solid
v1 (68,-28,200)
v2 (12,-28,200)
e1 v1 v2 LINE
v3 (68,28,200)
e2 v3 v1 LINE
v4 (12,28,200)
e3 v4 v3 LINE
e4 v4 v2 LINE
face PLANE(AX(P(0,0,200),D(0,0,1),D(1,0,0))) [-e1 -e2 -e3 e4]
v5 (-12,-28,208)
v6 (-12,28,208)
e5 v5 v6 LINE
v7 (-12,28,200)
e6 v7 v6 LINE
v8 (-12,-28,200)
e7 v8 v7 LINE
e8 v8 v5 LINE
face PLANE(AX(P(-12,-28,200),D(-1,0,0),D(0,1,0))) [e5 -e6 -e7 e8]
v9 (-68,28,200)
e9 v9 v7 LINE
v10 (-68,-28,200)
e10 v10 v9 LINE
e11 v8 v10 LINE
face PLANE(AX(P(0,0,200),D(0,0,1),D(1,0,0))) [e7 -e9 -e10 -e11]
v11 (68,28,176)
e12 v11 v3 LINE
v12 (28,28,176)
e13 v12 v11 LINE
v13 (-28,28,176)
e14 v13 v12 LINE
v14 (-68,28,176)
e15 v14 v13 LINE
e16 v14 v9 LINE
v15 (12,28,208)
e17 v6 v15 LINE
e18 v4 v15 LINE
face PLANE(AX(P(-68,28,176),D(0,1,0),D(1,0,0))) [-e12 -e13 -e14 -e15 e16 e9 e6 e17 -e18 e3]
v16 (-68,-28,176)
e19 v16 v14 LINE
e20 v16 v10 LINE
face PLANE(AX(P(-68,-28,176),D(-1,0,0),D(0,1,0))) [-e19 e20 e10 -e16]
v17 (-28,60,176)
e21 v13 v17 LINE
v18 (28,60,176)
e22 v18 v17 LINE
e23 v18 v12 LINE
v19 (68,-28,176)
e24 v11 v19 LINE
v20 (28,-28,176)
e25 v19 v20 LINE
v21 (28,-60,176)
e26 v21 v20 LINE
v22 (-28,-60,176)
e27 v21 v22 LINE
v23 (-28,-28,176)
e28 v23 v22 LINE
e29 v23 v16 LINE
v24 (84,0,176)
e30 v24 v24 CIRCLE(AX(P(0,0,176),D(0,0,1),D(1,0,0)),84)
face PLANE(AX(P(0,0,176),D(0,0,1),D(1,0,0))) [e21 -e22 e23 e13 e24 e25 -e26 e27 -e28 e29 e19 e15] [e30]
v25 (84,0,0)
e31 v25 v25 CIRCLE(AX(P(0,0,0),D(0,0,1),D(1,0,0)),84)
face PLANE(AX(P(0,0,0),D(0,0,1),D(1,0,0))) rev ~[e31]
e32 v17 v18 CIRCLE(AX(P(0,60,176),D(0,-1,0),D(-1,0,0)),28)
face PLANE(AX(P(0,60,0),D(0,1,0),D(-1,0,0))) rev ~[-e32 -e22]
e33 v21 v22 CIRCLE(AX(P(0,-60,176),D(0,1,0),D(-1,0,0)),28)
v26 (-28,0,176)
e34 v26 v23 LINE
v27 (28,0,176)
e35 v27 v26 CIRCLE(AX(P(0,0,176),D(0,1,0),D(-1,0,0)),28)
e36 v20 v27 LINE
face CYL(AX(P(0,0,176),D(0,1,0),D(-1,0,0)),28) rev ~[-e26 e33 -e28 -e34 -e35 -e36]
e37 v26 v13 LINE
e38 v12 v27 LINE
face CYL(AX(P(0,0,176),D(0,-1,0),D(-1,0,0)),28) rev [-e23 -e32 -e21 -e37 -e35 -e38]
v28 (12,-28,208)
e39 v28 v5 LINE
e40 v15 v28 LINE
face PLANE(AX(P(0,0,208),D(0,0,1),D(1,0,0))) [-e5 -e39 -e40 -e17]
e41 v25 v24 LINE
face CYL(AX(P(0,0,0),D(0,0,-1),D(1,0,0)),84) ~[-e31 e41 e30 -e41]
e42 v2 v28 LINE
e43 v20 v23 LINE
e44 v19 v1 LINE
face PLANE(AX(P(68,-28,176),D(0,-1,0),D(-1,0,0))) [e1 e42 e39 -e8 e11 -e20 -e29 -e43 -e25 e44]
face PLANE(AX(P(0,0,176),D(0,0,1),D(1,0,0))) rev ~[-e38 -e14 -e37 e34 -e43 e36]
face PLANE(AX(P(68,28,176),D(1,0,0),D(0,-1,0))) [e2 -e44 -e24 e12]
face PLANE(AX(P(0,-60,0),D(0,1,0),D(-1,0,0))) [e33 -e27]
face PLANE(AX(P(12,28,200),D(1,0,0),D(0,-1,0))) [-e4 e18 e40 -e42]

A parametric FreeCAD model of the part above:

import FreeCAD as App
import Part
import Sketcher
from FreeCAD import Vector
Q = App.Units.Quantity


def add_polygon(sketch, points):
    """Adds a closed chain of lines whose ends are joined by coincident constraints."""
    first, n = sketch.GeometryCount, len(points)
    for a, b in zip(points, points[1:] + points[:1]):
        sketch.addGeometry(Part.LineSegment(App.Vector(*a, 0), App.Vector(*b, 0)), False)
    for i in range(n):
        sketch.addConstraint(Sketcher.Constraint("Coincident", first + i, 2, first + (i + 1) % n, 1))

doc = App.newDocument("Part")
body = doc.addObject("PartDesign::Body", "Body")

sketch1 = doc.addObject("Sketcher::SketchObject", "Sketch")
body.addObject(sketch1)
sketch1.AttachmentSupport = (doc.XY_Plane, [""])
sketch1.MapMode = "FlatFace"
sketch1.addGeometry(Part.Circle(Vector(0, 0, 0), Vector(0, 0, 1), 84), False)
sketch1.addConstraint([
    Sketcher.Constraint("Coincident", 0, 3, -1, 1),
    Sketcher.Constraint("Diameter", 0, Q("168 mm")),
])
pad1 = doc.addObject("PartDesign::Pad", "Pad")
body.addObject(pad1)
pad1.Profile = sketch1
pad1.Length = 176

sketch2 = doc.addObject("Sketcher::SketchObject", "Sketch001")
body.addObject(sketch2)
sketch2.AttachmentSupport = (doc.XZ_Plane, [""])
sketch2.MapMode = "FlatFace"
sketch2.addGeometry(Part.Circle(Vector(0, 176, 0), Vector(0, 0, 1), 28), False)
sketch2.addConstraint([
    Sketcher.Constraint("PointOnObject", 0, 3, -2),
    Sketcher.Constraint("Diameter", 0, Q("56 mm")),
    Sketcher.Constraint("DistanceY", -1, 1, 0, 3, Q("176 mm")),
])
pocket1 = doc.addObject("PartDesign::Pocket", "Pocket")
body.addObject(pocket1)
pocket1.Profile = sketch2
pocket1.Length = 120
pocket1.Midplane = True

sketch3 = doc.addObject("Sketcher::SketchObject", "Sketch002")
body.addObject(sketch3)
sketch3.AttachmentSupport = (doc.XY_Plane, [""])
sketch3.MapMode = "FlatFace"
sketch3.AttachmentOffset = App.Placement(Vector(0, 0, 176), App.Rotation())
add_polygon(sketch3, [(-68, -28), (68, -28), (68, 28), (-68, 28)])
sketch3.addConstraint([
    Sketcher.Constraint("Horizontal", 0),
    Sketcher.Constraint("Vertical", 1),
    Sketcher.Constraint("Horizontal", 2),
    Sketcher.Constraint("Vertical", 3),
    Sketcher.Constraint("Symmetric", 0, 2, 2, 2, -1, 1),
    Sketcher.Constraint("DistanceY", 1, 1, 1, 2, Q("56 mm")),
    Sketcher.Constraint("DistanceX", 0, 1, 0, 2, Q("136 mm")),
])
pad2 = doc.addObject("PartDesign::Pad", "Pad001")
body.addObject(pad2)
pad2.Profile = sketch3
pad2.Length = 24

sketch4 = doc.addObject("Sketcher::SketchObject", "Sketch003")
body.addObject(sketch4)
sketch4.AttachmentSupport = (doc.XY_Plane, [""])
sketch4.MapMode = "FlatFace"
sketch4.AttachmentOffset = App.Placement(Vector(0, 0, 200), App.Rotation())
add_polygon(sketch4, [(-12, -28), (12, -28), (12, 28), (-12, 28)])
sketch4.addConstraint([
    Sketcher.Constraint("Horizontal", 0),
    Sketcher.Constraint("Vertical", 1),
    Sketcher.Constraint("Horizontal", 2),
    Sketcher.Constraint("Vertical", 3),
    Sketcher.Constraint("Symmetric", 0, 2, 2, 2, -1, 1),
    Sketcher.Constraint("DistanceX", 0, 1, 0, 2, Q("24 mm")),
    Sketcher.Constraint("DistanceY", 1, 1, 1, 2, Q("56 mm")),
])
pad3 = doc.addObject("PartDesign::Pad", "Pad002")
body.addObject(pad3)
pad3.Profile = sketch4
pad3.Length = 8

doc.recompute()
